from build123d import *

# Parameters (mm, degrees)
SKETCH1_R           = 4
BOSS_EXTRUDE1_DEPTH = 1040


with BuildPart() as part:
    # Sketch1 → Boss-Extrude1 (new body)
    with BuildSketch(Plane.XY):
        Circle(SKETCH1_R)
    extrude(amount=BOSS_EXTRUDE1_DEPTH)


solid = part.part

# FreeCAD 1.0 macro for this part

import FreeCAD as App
import Part
import Sketcher

V = App.Vector
Q = App.Units.Quantity

doc = App.newDocument("Part")
params = doc.addObject("Spreadsheet::Sheet", "Params")
for row, (alias, value) in enumerate([
    ("sketch1_diameter", "8 mm"),
    ("pad1_length", "1040 mm"),
], start=1):
    params.set(f"A{row}", alias)
    params.set(f"B{row}", "=" + value)
    params.setAlias(f"B{row}", alias)

body = doc.addObject("PartDesign::Body", "Body")

# Sketch on XY plane
sketch1 = body.newObject("Sketcher::SketchObject", "Sketch")
sketch1.AttachmentSupport = (doc.getObject("XY_Plane"), [""])
sketch1.MapMode = "FlatFace"
sketch1.addGeometry(Part.Circle(V(0, 0, 0), V(0, 0, 1), 4), False)
sketch1.addConstraint(Sketcher.Constraint("Coincident", 0, 3, -1, 1))
sketch1.addConstraint(Sketcher.Constraint("Diameter", 0, Q("8 mm")))
sketch1.setExpression("Constraints[1]", "Params.sketch1_diameter")
pad1 = body.newObject("PartDesign::Pad", "Pad")
pad1.Profile = sketch1
pad1.setExpression("Length", "Params.pad1_length")

doc.recompute()
